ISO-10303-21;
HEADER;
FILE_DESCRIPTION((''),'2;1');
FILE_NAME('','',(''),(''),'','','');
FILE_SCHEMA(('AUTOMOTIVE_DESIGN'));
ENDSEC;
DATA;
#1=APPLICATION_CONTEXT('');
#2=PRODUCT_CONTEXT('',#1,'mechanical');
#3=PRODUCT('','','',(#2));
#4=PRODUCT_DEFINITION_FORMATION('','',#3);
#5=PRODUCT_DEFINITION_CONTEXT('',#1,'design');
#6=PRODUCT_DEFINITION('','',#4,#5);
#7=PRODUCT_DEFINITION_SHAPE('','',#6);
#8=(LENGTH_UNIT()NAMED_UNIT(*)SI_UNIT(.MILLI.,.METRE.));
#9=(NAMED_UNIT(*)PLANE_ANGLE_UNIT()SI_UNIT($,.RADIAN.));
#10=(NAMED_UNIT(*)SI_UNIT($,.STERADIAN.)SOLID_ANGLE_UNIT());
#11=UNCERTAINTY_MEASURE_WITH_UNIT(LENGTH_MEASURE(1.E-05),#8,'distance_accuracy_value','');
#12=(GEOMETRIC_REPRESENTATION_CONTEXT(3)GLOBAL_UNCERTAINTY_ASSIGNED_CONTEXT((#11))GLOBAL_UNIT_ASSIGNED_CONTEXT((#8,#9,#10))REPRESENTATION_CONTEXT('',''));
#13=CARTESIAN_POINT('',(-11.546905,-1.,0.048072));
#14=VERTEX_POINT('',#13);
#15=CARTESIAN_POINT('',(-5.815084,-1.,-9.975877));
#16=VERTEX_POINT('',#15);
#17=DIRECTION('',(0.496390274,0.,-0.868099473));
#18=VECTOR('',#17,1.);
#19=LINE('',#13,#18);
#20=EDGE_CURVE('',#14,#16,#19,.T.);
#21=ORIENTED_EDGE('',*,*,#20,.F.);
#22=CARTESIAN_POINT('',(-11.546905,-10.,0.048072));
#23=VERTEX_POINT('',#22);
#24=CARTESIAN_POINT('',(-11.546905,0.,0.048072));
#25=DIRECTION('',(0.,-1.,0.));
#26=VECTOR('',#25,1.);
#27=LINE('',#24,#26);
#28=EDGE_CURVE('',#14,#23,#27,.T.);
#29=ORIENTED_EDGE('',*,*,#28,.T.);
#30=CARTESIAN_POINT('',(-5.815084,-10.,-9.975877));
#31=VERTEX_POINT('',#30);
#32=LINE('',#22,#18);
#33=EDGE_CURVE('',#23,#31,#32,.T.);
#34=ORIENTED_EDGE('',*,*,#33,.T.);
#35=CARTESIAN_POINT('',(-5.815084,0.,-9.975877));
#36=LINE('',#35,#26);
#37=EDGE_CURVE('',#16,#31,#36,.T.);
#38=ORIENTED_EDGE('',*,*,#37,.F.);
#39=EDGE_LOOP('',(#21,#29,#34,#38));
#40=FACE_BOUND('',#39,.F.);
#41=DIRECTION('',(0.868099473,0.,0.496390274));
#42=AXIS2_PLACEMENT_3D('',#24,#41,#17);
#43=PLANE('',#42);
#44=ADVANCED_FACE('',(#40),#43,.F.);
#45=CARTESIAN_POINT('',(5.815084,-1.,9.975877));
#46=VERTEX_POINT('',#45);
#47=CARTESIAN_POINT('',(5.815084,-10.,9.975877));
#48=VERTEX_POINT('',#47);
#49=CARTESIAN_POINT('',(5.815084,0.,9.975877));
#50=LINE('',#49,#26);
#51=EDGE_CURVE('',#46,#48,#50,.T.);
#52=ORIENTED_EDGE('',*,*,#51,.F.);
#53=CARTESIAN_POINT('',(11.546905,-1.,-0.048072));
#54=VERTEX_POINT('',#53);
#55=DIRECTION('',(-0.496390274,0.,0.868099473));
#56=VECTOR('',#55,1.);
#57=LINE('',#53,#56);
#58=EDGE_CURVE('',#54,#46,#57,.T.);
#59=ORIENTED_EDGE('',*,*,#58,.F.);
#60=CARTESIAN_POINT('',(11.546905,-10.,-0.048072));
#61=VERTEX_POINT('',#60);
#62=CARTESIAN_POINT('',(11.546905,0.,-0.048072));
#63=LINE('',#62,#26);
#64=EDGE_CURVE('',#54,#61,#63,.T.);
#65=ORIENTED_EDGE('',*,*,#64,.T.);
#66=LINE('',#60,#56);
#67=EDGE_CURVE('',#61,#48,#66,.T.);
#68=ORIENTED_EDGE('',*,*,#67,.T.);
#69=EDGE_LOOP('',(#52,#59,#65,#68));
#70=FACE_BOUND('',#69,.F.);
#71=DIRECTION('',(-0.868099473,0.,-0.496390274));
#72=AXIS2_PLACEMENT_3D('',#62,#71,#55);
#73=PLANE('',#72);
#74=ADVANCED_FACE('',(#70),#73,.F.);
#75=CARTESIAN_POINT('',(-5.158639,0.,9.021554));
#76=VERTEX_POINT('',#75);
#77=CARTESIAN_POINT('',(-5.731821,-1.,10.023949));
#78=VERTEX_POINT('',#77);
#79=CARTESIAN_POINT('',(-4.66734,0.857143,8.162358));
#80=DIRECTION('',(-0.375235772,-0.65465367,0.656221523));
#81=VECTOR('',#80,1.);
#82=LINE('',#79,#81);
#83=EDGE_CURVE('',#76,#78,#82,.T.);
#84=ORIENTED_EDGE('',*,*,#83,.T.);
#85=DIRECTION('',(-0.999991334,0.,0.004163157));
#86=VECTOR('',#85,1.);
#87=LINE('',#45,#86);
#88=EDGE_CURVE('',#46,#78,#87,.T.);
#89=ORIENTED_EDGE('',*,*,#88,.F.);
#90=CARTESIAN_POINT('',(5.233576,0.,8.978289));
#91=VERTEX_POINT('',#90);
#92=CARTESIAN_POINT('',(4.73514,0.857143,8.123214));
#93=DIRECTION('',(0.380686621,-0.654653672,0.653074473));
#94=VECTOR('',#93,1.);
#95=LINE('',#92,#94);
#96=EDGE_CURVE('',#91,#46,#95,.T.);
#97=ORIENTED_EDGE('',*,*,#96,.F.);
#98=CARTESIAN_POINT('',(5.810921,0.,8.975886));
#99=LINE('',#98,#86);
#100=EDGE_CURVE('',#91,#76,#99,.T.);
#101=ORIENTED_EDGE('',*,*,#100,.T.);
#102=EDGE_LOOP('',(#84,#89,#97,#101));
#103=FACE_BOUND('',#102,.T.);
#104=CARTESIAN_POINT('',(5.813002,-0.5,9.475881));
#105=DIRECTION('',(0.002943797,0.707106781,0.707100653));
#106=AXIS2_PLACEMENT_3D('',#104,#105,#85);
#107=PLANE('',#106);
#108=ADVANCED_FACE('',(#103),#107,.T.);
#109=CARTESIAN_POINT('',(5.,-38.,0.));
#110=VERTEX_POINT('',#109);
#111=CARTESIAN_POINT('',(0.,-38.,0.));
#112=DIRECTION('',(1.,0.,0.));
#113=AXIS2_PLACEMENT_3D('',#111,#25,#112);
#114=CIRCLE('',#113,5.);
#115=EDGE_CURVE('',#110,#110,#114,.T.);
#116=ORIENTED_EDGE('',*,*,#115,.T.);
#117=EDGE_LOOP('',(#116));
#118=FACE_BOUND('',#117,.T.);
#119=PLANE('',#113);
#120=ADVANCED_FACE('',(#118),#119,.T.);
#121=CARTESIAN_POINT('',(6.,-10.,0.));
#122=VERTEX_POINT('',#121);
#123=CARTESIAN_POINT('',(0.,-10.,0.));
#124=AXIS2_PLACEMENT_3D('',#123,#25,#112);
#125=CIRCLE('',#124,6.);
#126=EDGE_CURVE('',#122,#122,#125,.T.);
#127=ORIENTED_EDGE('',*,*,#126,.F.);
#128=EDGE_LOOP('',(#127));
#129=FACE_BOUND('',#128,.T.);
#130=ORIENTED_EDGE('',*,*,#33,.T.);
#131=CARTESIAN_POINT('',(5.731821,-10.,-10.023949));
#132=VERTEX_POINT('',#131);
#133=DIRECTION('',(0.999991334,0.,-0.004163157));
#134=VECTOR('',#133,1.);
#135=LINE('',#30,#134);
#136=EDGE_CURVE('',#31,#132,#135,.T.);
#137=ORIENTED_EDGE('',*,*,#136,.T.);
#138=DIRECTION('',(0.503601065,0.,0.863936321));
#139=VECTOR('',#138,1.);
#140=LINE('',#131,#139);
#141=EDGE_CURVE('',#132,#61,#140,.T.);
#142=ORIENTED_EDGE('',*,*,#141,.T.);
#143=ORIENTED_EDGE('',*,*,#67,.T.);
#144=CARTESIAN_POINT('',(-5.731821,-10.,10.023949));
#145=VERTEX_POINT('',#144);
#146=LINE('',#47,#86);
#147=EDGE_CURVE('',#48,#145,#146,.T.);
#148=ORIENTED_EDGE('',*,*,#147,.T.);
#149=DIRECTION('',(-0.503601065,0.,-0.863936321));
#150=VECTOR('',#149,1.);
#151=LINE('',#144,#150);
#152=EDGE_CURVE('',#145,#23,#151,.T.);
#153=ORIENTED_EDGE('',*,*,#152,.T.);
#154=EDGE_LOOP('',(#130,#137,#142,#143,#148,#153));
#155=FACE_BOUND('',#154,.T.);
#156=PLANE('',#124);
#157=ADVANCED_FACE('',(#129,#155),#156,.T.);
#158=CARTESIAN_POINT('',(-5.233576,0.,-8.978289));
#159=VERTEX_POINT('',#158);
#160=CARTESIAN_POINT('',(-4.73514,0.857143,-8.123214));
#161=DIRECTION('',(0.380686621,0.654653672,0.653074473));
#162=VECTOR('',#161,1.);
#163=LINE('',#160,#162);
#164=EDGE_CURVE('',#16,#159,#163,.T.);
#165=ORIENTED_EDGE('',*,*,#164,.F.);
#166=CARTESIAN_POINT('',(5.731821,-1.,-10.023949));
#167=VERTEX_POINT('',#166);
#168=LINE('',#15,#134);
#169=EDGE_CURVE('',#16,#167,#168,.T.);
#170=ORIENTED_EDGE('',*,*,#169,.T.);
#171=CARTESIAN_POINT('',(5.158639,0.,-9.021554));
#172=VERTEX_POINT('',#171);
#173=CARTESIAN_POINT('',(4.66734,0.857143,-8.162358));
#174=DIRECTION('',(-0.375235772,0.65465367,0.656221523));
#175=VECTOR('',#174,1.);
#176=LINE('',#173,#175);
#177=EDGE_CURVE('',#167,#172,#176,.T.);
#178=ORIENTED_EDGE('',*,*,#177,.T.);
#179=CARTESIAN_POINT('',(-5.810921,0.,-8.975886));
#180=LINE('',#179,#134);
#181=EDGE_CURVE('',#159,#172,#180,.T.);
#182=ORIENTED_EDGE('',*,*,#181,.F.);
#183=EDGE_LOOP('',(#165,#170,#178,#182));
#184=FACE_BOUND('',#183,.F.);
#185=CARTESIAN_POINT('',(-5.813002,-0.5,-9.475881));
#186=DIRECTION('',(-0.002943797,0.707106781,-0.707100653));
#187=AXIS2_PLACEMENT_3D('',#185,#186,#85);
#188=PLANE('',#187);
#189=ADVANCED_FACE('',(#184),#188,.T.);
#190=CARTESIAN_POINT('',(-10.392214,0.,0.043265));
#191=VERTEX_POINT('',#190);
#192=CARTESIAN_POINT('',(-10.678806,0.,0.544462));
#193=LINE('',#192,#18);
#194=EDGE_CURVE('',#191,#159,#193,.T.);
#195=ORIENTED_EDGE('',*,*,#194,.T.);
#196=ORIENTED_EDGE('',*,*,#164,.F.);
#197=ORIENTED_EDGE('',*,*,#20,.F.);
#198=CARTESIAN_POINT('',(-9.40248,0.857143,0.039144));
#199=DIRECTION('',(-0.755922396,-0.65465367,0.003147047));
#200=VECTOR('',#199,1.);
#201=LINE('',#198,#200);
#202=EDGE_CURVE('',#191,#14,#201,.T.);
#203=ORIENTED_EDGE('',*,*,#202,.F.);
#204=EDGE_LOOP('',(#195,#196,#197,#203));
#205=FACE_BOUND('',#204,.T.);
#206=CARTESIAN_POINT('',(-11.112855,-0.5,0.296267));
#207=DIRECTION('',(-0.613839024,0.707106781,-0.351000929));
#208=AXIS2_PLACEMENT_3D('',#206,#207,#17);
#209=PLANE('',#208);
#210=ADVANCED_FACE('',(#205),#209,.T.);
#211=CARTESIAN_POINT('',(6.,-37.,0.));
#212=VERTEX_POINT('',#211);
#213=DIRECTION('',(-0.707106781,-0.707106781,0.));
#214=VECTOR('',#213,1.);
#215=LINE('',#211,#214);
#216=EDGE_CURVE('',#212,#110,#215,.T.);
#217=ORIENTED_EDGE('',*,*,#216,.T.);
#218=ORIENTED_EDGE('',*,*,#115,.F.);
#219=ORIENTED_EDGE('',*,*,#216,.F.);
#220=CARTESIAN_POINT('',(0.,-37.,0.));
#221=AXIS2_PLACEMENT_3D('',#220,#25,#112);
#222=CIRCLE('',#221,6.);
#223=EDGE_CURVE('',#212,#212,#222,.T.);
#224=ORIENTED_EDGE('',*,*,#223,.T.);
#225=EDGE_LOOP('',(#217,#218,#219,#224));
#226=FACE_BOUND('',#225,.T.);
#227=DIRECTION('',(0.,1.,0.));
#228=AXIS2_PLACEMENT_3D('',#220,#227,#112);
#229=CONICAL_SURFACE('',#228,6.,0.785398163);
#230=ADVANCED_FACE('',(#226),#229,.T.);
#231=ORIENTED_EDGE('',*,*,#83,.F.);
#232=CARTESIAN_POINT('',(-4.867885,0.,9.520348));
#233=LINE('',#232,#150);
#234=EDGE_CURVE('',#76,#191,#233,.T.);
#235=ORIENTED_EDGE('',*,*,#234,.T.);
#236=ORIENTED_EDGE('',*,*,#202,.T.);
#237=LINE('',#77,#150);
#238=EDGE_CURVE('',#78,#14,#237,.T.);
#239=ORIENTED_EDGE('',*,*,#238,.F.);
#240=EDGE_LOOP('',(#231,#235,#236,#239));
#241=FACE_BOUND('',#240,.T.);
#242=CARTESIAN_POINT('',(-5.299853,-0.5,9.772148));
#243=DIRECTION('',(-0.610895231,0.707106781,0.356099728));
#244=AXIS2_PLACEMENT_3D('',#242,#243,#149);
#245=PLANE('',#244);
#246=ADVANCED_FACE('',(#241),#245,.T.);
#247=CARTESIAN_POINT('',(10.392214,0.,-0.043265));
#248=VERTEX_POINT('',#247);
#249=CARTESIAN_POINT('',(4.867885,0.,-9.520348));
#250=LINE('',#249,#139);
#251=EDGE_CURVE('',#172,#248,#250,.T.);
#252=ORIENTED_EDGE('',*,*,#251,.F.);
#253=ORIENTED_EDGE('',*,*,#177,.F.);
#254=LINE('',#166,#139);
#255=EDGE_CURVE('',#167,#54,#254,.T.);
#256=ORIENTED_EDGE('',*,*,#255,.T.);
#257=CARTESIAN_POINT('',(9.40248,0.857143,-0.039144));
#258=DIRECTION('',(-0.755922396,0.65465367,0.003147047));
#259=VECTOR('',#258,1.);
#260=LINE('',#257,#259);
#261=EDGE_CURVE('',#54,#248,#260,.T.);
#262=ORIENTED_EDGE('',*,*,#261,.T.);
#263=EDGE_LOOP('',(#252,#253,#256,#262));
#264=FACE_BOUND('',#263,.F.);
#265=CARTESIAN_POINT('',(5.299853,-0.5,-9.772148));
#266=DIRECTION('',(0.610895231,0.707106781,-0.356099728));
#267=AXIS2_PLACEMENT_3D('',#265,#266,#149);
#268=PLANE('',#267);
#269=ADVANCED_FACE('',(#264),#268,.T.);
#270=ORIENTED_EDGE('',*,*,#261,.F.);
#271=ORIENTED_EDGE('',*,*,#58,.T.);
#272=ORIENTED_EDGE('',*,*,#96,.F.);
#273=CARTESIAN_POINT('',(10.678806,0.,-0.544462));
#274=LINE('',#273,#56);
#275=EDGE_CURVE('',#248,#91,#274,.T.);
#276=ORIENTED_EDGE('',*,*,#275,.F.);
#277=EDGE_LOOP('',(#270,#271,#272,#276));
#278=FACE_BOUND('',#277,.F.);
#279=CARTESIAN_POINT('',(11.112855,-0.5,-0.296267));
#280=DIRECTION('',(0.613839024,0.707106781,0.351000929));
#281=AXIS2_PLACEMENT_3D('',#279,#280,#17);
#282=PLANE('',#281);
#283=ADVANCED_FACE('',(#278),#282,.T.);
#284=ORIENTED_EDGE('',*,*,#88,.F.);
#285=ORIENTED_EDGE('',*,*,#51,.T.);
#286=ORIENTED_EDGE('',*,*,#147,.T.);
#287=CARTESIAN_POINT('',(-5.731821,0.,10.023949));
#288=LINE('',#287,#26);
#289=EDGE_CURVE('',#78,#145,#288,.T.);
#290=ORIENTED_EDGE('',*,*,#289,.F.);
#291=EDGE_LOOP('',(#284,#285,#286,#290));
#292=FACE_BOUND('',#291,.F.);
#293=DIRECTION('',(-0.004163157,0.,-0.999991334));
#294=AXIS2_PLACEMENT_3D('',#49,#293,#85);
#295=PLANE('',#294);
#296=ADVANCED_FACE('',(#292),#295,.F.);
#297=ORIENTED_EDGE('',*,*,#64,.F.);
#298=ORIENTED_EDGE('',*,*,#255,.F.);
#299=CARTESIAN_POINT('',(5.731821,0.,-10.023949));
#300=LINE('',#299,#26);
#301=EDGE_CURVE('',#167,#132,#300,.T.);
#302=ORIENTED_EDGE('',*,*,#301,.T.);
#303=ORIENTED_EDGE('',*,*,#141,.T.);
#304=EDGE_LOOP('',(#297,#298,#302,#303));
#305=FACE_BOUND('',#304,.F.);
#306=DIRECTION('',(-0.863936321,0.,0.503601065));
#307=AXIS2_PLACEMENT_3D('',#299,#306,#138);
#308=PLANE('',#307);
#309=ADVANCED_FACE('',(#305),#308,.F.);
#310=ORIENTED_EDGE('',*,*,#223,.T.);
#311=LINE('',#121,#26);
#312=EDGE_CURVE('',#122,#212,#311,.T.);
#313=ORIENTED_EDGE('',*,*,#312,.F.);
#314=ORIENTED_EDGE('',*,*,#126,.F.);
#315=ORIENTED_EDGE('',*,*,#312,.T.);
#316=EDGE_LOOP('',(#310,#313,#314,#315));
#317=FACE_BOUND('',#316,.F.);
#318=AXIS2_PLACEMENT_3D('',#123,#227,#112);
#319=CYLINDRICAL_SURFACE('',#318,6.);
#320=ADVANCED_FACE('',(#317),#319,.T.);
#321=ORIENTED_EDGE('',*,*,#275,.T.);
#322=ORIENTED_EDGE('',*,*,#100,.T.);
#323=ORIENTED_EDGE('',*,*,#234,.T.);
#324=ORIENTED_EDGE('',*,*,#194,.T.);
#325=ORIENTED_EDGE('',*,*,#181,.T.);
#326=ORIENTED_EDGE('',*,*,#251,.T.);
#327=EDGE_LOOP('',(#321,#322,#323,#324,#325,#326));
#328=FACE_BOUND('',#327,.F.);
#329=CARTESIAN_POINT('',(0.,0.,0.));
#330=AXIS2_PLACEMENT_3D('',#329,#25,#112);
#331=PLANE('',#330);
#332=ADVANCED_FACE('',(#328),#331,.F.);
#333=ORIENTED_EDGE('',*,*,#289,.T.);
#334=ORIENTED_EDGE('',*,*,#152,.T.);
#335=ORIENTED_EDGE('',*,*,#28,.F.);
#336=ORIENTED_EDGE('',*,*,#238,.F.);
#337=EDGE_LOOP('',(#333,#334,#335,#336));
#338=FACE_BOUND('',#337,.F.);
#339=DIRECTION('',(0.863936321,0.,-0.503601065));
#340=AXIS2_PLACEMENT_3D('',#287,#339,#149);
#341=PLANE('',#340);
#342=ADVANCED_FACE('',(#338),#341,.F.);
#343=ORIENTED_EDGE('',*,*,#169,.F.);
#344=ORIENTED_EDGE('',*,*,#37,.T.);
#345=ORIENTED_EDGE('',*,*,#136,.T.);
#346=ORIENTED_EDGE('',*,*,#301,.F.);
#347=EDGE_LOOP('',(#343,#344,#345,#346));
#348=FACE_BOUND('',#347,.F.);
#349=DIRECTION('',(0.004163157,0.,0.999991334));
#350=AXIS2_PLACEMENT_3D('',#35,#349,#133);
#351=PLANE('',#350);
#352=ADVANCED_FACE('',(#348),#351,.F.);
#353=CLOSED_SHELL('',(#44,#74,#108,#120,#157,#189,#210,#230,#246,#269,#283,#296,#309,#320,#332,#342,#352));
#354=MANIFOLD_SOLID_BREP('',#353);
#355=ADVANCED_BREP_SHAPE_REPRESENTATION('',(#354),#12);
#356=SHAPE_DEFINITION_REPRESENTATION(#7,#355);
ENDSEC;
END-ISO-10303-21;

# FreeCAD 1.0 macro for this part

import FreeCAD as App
import Part
import Sketcher
Q = App.Units.Quantity


def edges_at(feature, points):
    """Names of the edges that pass closest to the given points."""
    edges = feature.Shape.Edges
    near = lambda p: min(range(len(edges)), key=lambda i: edges[i].distToShape(Part.Vertex(*p))[0])
    return sorted({f"Edge{near(p) + 1}" for p in points})

doc = App.newDocument("Part")
params = doc.addObject("Spreadsheet::Sheet", "Params")
for row, (alias, value) in enumerate([
    ("pad1_length", "10 mm"),
    ("sketch2_diameter", "12 mm"),
    ("pad2_length", "28 mm"),
    ("chamfer_size", "1 mm"),
], start=1):
    params.set(f"A{row}", alias)
    params.set(f"B{row}", "=" + value)
    params.setAlias(f"B{row}", alias)

body = doc.addObject("PartDesign::Body", "Body")

sketch1 = body.newObject("Sketcher::SketchObject", "Sketch")
sketch1.AttachmentSupport = (doc.getObject("XZ_Plane"), [""])
sketch1.MapMode = "FlatFace"
sketch1.addGeometry(Part.LineSegment(App.Vector(6, -10, 0), App.Vector(12, 0, 0)), False)
sketch1.addGeometry(Part.LineSegment(App.Vector(12, 0, 0), App.Vector(6, 10, 0)), False)
sketch1.addGeometry(Part.LineSegment(App.Vector(6, 10, 0), App.Vector(-6, 10, 0)), False)
sketch1.addGeometry(Part.LineSegment(App.Vector(-6, 10, 0), App.Vector(-12, 0, 0)), False)
sketch1.addGeometry(Part.LineSegment(App.Vector(-12, 0, 0), App.Vector(-6, -10, 0)), False)
sketch1.addGeometry(Part.LineSegment(App.Vector(-6, -10, 0), App.Vector(6, -10, 0)), False)
sketch1.addConstraint(Sketcher.Constraint("Coincident", 0, 2, 1, 1))
sketch1.addConstraint(Sketcher.Constraint("Coincident", 1, 2, 2, 1))
sketch1.addConstraint(Sketcher.Constraint("Coincident", 2, 2, 3, 1))
sketch1.addConstraint(Sketcher.Constraint("Coincident", 3, 2, 4, 1))
sketch1.addConstraint(Sketcher.Constraint("Coincident", 4, 2, 5, 1))
sketch1.addConstraint(Sketcher.Constraint("Coincident", 5, 2, 0, 1))
sketch1.addConstraint(Sketcher.Constraint("Symmetric", 0, 2, 3, 2, -1, 1))
sketch1.addConstraint(Sketcher.Constraint("Symmetric", 1, 2, 4, 2, -1, 1))
sketch1.addConstraint(Sketcher.Constraint("Symmetric", 2, 2, 5, 2, -1, 1))
sketch1.addConstraint(Sketcher.Constraint("Equal", 0, 1))
sketch1.addConstraint(Sketcher.Constraint("Equal", 1, 2))
sketch1.addConstraint(Sketcher.Constraint("DistanceY", 5, 2, 2, 2, Q("20.047898 mm")))
sketch1.addConstraint(Sketcher.Constraint("DistanceY", 0, 2, -1, 1, Q("0.048072 mm")))
sketch1.addConstraint(Sketcher.Constraint("DistanceX", 2, 2, -1, 1, Q("5.731821 mm")))
sketch1.addConstraint(Sketcher.Constraint("DistanceX", 1, 2, 0, 2, Q("5.731821 mm")))
pad1 = body.newObject("PartDesign::Pad", "Pad")
pad1.Profile = sketch1
pad1.setExpression("Length", "Params.pad1_length")

sketch2 = body.newObject("Sketcher::SketchObject", "Sketch001")
sketch2.AttachmentSupport = (doc.getObject("XZ_Plane"), [""])
sketch2.MapMode = "FlatFace"
sketch2.AttachmentOffset = App.Placement(App.Vector(0, 0, 10), App.Rotation())
sketch2.addGeometry(Part.Circle(App.Vector(0, 0, 0), App.Vector(0, 0, 1), 6), False)
sketch2.addConstraint(Sketcher.Constraint("Coincident", 0, 3, -1, 1))
sketch2.addConstraint(Sketcher.Constraint("Diameter", 0, Q("12 mm")))
sketch2.setExpression("Constraints[1]", "Params.sketch2_diameter")
pad2 = body.newObject("PartDesign::Pad", "Pad001")
pad2.Profile = sketch2
pad2.setExpression("Length", "Params.pad2_length")
doc.recompute()

chamfer = body.newObject("PartDesign::Chamfer", "Chamfer")
chamfer.Base = (pad2, edges_at(pad2, [
    (-8.639, 0, 5.036),
    (0.042, 0, 10),
    (8.681, 0, 4.964),
    (8.639, 0, -5.036),
    (-0.042, 0, -10),
    (-8.681, 0, -4.964),
    (-6, -38, 0),
]))
chamfer.setExpression("Size", "Params.chamfer_size")

doc.recompute()
